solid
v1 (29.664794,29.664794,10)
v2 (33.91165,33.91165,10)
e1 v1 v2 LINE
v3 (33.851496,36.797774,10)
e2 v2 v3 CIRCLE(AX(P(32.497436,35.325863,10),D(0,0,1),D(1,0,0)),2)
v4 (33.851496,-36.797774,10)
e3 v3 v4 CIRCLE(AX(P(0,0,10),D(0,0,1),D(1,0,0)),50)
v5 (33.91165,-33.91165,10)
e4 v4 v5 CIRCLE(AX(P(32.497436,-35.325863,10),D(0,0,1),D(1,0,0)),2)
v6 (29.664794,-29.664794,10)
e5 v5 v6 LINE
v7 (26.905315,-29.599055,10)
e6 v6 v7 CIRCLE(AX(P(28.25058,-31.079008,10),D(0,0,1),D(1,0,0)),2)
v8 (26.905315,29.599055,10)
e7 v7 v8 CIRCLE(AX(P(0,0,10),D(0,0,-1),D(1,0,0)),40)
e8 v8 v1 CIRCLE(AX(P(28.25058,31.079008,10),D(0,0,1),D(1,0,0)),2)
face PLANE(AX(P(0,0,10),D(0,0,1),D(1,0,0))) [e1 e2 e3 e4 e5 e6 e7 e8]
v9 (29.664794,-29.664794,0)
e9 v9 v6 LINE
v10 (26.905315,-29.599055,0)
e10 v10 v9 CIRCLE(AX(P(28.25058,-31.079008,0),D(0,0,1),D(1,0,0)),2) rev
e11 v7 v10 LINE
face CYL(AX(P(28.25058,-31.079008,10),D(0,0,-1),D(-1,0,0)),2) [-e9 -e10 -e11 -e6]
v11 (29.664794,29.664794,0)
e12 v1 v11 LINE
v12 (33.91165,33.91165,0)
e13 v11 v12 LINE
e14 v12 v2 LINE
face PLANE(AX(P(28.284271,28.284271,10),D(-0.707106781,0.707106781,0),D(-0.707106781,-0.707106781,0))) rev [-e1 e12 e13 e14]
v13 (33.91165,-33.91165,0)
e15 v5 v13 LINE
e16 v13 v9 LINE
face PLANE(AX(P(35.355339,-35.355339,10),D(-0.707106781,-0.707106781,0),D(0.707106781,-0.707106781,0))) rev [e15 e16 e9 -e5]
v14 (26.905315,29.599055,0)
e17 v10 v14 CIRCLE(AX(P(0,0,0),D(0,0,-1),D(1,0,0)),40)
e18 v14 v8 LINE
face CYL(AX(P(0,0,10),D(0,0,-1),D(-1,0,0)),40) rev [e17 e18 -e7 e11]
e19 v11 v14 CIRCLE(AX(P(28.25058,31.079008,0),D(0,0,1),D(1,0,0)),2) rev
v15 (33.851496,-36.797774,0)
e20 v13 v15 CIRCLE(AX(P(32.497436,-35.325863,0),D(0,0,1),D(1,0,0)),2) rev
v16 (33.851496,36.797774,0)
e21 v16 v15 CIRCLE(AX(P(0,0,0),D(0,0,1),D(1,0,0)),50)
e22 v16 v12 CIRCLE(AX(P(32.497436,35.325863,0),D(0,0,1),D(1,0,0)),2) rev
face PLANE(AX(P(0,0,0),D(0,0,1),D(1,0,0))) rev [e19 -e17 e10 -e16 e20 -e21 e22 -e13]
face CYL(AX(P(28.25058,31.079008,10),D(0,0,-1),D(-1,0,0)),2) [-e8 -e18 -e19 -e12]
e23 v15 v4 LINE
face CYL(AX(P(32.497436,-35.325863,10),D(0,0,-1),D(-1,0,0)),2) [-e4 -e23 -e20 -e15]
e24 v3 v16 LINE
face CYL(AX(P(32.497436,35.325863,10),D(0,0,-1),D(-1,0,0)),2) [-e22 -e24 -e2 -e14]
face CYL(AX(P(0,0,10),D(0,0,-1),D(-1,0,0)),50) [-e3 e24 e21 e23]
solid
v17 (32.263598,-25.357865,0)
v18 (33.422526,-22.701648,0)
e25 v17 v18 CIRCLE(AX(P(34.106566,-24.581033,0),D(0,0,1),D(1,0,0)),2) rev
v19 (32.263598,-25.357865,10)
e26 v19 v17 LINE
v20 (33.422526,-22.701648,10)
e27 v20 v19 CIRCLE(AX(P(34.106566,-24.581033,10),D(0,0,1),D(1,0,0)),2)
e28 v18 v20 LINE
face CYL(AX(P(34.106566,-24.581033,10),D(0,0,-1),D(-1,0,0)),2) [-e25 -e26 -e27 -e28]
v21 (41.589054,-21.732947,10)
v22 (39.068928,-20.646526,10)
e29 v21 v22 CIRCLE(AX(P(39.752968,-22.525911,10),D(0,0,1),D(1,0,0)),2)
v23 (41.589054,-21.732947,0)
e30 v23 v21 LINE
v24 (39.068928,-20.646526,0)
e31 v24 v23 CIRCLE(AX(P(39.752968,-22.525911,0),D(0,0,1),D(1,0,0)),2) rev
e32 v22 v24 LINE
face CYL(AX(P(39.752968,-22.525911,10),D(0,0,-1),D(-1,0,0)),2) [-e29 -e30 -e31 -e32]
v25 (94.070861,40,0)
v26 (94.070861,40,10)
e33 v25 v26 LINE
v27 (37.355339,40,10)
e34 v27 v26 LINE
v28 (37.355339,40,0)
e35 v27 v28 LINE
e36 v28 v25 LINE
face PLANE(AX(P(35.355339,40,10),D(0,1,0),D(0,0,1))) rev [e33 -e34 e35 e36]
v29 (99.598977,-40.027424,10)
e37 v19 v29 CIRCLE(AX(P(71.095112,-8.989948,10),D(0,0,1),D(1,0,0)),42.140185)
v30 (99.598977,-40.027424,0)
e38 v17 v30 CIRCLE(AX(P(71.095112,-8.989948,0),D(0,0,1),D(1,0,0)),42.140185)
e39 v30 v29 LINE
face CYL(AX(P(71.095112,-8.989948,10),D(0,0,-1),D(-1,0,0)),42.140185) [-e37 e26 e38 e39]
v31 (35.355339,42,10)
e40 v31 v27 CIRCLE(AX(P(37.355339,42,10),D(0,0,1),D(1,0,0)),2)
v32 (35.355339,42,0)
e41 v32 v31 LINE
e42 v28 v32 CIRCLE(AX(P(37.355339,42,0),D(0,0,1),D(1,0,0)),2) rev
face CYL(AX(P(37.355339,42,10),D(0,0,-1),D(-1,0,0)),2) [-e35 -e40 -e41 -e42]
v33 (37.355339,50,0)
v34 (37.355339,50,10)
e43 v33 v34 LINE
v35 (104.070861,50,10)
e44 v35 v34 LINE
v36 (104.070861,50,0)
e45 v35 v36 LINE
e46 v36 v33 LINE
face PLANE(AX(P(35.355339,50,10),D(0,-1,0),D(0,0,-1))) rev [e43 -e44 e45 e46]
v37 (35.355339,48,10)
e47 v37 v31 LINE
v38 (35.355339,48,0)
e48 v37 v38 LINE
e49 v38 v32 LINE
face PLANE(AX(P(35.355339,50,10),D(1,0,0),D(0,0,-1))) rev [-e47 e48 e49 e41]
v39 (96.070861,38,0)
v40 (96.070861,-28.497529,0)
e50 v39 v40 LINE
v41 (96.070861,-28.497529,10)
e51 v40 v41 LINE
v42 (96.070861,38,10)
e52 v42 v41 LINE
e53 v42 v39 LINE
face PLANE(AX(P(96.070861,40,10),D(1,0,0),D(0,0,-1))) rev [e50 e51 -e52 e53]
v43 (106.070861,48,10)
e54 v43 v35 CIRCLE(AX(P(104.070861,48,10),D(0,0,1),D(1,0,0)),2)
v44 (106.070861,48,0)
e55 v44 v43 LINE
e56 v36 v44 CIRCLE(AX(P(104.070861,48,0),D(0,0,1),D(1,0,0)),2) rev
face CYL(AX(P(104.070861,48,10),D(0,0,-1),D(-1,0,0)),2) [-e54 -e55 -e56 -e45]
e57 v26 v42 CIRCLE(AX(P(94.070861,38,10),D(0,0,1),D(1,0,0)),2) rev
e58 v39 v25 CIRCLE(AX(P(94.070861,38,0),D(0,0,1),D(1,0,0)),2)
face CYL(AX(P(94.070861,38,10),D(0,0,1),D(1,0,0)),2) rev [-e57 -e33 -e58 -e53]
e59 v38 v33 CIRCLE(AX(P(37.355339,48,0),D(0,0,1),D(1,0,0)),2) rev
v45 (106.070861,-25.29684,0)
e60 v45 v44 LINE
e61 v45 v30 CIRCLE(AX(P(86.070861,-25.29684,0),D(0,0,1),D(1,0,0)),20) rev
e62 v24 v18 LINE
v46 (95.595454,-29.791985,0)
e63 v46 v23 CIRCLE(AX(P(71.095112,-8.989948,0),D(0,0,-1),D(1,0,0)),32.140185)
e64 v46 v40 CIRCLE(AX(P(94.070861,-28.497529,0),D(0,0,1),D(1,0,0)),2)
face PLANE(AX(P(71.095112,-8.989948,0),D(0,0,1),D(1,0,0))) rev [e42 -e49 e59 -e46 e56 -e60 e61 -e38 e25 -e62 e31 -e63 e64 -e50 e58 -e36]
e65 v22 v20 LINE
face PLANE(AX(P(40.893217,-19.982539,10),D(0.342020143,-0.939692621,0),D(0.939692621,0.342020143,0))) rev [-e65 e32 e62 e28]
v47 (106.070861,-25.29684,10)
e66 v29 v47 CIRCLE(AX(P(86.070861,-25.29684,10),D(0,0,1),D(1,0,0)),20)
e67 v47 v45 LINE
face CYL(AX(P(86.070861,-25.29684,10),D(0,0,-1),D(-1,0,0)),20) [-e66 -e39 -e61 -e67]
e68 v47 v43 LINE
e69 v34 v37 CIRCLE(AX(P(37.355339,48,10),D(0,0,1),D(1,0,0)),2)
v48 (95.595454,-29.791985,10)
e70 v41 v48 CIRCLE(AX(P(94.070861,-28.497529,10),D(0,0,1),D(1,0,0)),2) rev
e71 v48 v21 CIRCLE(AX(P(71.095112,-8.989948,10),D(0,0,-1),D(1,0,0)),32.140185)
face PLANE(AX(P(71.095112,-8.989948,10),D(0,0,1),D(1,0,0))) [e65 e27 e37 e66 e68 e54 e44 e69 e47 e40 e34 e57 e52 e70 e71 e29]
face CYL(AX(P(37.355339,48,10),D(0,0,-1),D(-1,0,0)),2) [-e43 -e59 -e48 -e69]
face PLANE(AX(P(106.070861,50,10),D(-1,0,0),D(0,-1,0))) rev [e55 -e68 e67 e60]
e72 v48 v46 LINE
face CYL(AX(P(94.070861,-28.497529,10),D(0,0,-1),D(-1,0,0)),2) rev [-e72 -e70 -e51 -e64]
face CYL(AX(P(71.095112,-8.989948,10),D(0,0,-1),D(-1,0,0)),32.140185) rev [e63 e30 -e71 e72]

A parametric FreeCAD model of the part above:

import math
import FreeCAD as App
import Part
import Sketcher

V = App.Vector
Q = App.Units.Quantity


def edges_at(feature, points):
    """Names of the edges that pass closest to the given points."""
    edges = feature.Shape.Edges
    near = lambda p: min(range(len(edges)), key=lambda i: edges[i].distToShape(Part.Vertex(*p))[0])
    return sorted({f"Edge{near(p) + 1}" for p in points})

doc = App.newDocument("Part")
body = doc.addObject("PartDesign::Body", "Body")

# Sketch on XY plane
sketch1 = body.newObject("Sketcher::SketchObject", "Sketch")
sketch1.AttachmentSupport = (doc.getObject("XY_Plane"), [""])
sketch1.MapMode = "FlatFace"
sketch1.addGeometry([
    Part.LineSegment(V(35, -35, 0), V(28, -28, 0)),
    Part.ArcOfCircle(Part.Circle(V(0, 0, 0), V(0, 0, 1), 40), math.radians(45), math.radians(315)),
    Part.LineSegment(V(28, 28, 0), V(35, 35, 0)),
    Part.ArcOfCircle(Part.Circle(V(0, 0, 0), V(0, 0, 1), 50), math.radians(45), math.radians(315)),
], False)
sketch1.addConstraint([
    Sketcher.Constraint("Coincident", 0, 2, 1, 2),
    Sketcher.Constraint("Coincident", 1, 1, 2, 1),
    Sketcher.Constraint("Coincident", 2, 2, 3, 1),
    Sketcher.Constraint("Coincident", 3, 2, 0, 1),
    Sketcher.Constraint("Coincident", 1, 3, -1, 1),
    Sketcher.Constraint("Coincident", 3, 3, -1, 1),
    Sketcher.Constraint("Perpendicular", 0, 2),
    Sketcher.Constraint("Vertical", 0, 2, 1, 1),
    Sketcher.Constraint("Vertical", 2, 2, 3, 2),
    Sketcher.Constraint("Radius", 1, 40.0),
    Sketcher.Constraint("Radius", 3, 50.0),
    Sketcher.Constraint("DistanceX", -1, 1, 0, 2, 28.284271),
])
pad1 = body.newObject("PartDesign::Pad", "Pad")
pad1.Profile = sketch1
pad1.Length = 10
doc.recompute()

fillet = body.newObject("PartDesign::Fillet", "Fillet")
fillet.Base = (pad1, edges_at(pad1, [
    (28.284, -28.284, 5),
    (35.355, -35.355, 5),
    (35.355, 35.355, 5),
    (28.284, 28.284, 5),
]))
fillet.Radius = 2
body2 = doc.addObject("PartDesign::Body", "Body001")

# Sketch on XY plane
sketch2 = body2.newObject("Sketcher::SketchObject", "Sketch001")
sketch2.AttachmentSupport = (doc.getObject("XY_Plane001"), [""])
sketch2.MapMode = "FlatFace"
sketch2.addGeometry([
    Part.LineSegment(V(106, 50, 0), V(35, 50, 0)),  # 0
    Part.LineSegment(V(35, 50, 0), V(35, 40, 0)),  # 1
    Part.LineSegment(V(35, 40, 0), V(96, 40, 0)),  # 2
    Part.LineSegment(V(96, 40, 0), V(96, -29, 0)),  # 3
    Part.ArcOfCircle(Part.Circle(V(71, -9, 0), V(0, 0, 1), 32), math.radians(-160), math.radians(-39)),  # 4
    Part.LineSegment(V(41, -20, 0), V(31, -23, 0)),  # 5
    Part.ArcOfCircle(Part.Circle(V(71, -9, 0), V(0, 0, 1), 42), math.radians(-160), math.radians(-34)),  # 6
    Part.LineSegment(V(106, -32, 0), V(106, 50, 0)),  # 7
], False)
sketch2.addConstraint([
    Sketcher.Constraint("Coincident", 0, 2, 1, 1),
    Sketcher.Constraint("Coincident", 1, 2, 2, 1),
    Sketcher.Constraint("Coincident", 2, 2, 3, 1),
    Sketcher.Constraint("Coincident", 3, 2, 4, 2),
    Sketcher.Constraint("Coincident", 4, 1, 5, 1),
    Sketcher.Constraint("Coincident", 5, 2, 6, 1),
    Sketcher.Constraint("Coincident", 6, 2, 7, 1),
    Sketcher.Constraint("Coincident", 7, 2, 0, 1),
    Sketcher.Constraint("Horizontal", 0),
    Sketcher.Constraint("Vertical", 1),
    Sketcher.Constraint("Horizontal", 2),
    Sketcher.Constraint("Vertical", 3),
    Sketcher.Constraint("Vertical", 7),
    Sketcher.Constraint("Coincident", 6, 3, 4, 3),
    Sketcher.Constraint("DistanceY", 1, 2, 1, 1, 10.0),
    Sketcher.Constraint("Angle", 5, Q("-160 deg")),
    Sketcher.Constraint("Distance", 5, 10.0),
    Sketcher.Constraint("DistanceY", -1, 1, 0, 2, 50.0),
    Sketcher.Constraint("DistanceX", 3, 2, 6, 2, 10.0),
    Sketcher.Constraint("DistanceY", 7, 1, 7, 2, 82.4951),
    Sketcher.Constraint("Radius", 4, 32.140185),
    Sketcher.Constraint("DistanceX", 0, 2, 0, 1, 70.715522),
    Sketcher.Constraint("DistanceY", 3, 2, 3, 1, 69.218726),
    Sketcher.Constraint("DistanceX", -1, 1, 4, 3, 71.095112),
    Sketcher.Constraint("DistanceY", 4, 1, -1, 1, 19.982539),
])
pad2 = body2.newObject("PartDesign::Pad", "Pad001")
pad2.Profile = sketch2
pad2.Length = 10
doc.recompute()

fillet2 = body2.newObject("PartDesign::Fillet", "Fillet001")
fillet2.Base = (pad2, edges_at(pad2, [(106.071, -32.495, 5)]))
fillet2.Radius = 20
doc.recompute()

fillet3 = body2.newObject("PartDesign::Fillet", "Fillet002")
fillet3.Base = (fillet2, edges_at(fillet2, [(106.071, 50, 5)]))
fillet3.Radius = 2
doc.recompute()

fillet4 = body2.newObject("PartDesign::Fillet", "Fillet003")
fillet4.Base = (fillet3, edges_at(fillet3, [
    (31.496, -23.403, 5),
    (40.893, -19.983, 5),
    (96.071, -29.219, 5),
    (96.071, 40, 5),
    (35.355, 40, 5),
    (35.355, 50, 5),
]))
fillet4.Radius = 2

doc.recompute()
